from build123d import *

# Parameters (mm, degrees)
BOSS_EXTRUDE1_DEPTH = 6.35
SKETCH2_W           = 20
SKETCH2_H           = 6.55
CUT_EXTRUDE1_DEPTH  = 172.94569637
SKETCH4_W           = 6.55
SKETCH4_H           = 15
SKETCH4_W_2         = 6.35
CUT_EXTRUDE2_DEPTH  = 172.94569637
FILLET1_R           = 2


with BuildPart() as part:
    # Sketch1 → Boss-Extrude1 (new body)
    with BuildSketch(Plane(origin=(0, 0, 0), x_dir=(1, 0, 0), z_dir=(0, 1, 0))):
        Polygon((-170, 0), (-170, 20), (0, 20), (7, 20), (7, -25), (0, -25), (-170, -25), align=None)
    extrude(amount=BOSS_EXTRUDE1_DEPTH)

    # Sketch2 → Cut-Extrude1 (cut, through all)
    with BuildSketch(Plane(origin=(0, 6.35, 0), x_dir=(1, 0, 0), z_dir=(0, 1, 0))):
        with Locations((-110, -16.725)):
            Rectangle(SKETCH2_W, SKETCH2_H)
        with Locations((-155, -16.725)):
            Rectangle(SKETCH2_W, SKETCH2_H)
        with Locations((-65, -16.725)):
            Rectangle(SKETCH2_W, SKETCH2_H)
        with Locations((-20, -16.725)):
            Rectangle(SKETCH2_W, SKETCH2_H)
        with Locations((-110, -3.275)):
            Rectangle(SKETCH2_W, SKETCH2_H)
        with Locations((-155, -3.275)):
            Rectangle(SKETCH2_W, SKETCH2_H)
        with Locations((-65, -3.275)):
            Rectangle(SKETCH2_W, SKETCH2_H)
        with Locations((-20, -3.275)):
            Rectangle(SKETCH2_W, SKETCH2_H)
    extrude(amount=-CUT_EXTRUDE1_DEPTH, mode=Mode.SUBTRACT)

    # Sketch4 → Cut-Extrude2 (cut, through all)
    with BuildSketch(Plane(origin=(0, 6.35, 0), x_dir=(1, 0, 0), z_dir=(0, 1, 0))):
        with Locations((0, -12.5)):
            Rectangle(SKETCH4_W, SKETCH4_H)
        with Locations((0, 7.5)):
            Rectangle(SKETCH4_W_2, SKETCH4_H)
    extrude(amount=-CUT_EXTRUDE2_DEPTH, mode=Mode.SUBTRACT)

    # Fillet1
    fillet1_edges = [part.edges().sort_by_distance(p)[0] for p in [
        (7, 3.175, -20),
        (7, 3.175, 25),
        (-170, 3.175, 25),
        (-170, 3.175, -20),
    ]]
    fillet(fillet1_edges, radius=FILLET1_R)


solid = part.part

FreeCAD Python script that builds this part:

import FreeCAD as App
import Part
import Sketcher

V = App.Vector


def edges_at(feature, points):
    """Names of the edges that pass closest to the given points."""
    edges = feature.Shape.Edges
    near = lambda p: min(range(len(edges)), key=lambda i: edges[i].distToShape(Part.Vertex(*p))[0])
    return sorted({f"Edge{near(p) + 1}" for p in points})

doc = App.newDocument("Part")
body = doc.addObject("PartDesign::Body", "Body")

# Sketch on XZ plane
sketch1 = body.newObject("Sketcher::SketchObject", "Sketch")
sketch1.AttachmentSupport = (doc.getObject("XZ_Plane"), [""])
sketch1.MapMode = "FlatFace"
sketch1.addGeometry([
    Part.LineSegment(V(-170, -20, 0), V(-170, 25, 0)),
    Part.LineSegment(V(-170, 25, 0), V(7, 25, 0)),
    Part.LineSegment(V(7, 25, 0), V(7, -20, 0)),
    Part.LineSegment(V(7, -20, 0), V(-170, -20, 0)),
], False)
sketch1.addConstraint([
    Sketcher.Constraint("Coincident", 0, 2, 1, 1),
    Sketcher.Constraint("Coincident", 1, 2, 2, 1),
    Sketcher.Constraint("Coincident", 2, 2, 3, 1),
    Sketcher.Constraint("Coincident", 3, 2, 0, 1),
    Sketcher.Constraint("Vertical", 0),
    Sketcher.Constraint("Horizontal", 1),
    Sketcher.Constraint("Vertical", 2),
    Sketcher.Constraint("Horizontal", 3),
    Sketcher.Constraint("DistanceX", 1, 1, 1, 2, 177.0),
    Sketcher.Constraint("DistanceY", 0, 1, 0, 2, 45.0),
    Sketcher.Constraint("DistanceX", 0, 2, -1, 1, 170.0),
    Sketcher.Constraint("DistanceY", -1, 1, 0, 2, 25.0),
])
pad1 = body.newObject("PartDesign::Pad", "Pad")
pad1.Profile = sketch1
pad1.Length = 6.35
pad1.Reversed = True

# Sketch on XZ plane
sketch2 = body.newObject("Sketcher::SketchObject", "Sketch001")
sketch2.AttachmentSupport = (doc.getObject("XZ_Plane"), [""])
sketch2.MapMode = "FlatFace"
sketch2.AttachmentOffset = App.Placement(V(0, 0, -6.35), App.Rotation())
sketch2.addGeometry([
    Part.LineSegment(V(-120, 13, 0), V(-120, 20, 0)),  # 0
    Part.LineSegment(V(-120, 20, 0), V(-100, 20, 0)),  # 1
    Part.LineSegment(V(-100, 20, 0), V(-100, 13, 0)),  # 2
    Part.LineSegment(V(-100, 13, 0), V(-120, 13, 0)),  # 3
    Part.LineSegment(V(-165, 13, 0), V(-165, 20, 0)),  # 4
    Part.LineSegment(V(-165, 20, 0), V(-145, 20, 0)),  # 5
    Part.LineSegment(V(-145, 20, 0), V(-145, 13, 0)),  # 6
    Part.LineSegment(V(-145, 13, 0), V(-165, 13, 0)),  # 7
    Part.LineSegment(V(-75, 13, 0), V(-75, 20, 0)),  # 8
    Part.LineSegment(V(-75, 20, 0), V(-55, 20, 0)),  # 9
    Part.LineSegment(V(-55, 20, 0), V(-55, 13, 0)),  # 10
    Part.LineSegment(V(-55, 13, 0), V(-75, 13, 0)),  # 11
    Part.LineSegment(V(-30, 13, 0), V(-30, 20, 0)),  # 12
    Part.LineSegment(V(-30, 20, 0), V(-10, 20, 0)),  # 13
    Part.LineSegment(V(-10, 20, 0), V(-10, 13, 0)),  # 14
    Part.LineSegment(V(-10, 13, 0), V(-30, 13, 0)),  # 15
    Part.LineSegment(V(-120, 0, 0), V(-120, 7, 0)),  # 16
    Part.LineSegment(V(-120, 7, 0), V(-100, 7, 0)),  # 17
    Part.LineSegment(V(-100, 7, 0), V(-100, 0, 0)),  # 18
    Part.LineSegment(V(-100, 0, 0), V(-120, 0, 0)),  # 19
    Part.LineSegment(V(-165, 0, 0), V(-165, 7, 0)),  # 20
    Part.LineSegment(V(-165, 7, 0), V(-145, 7, 0)),  # 21
    Part.LineSegment(V(-145, 7, 0), V(-145, 0, 0)),  # 22
    Part.LineSegment(V(-145, 0, 0), V(-165, 0, 0)),  # 23
    Part.LineSegment(V(-75, 0, 0), V(-75, 7, 0)),  # 24
    Part.LineSegment(V(-75, 7, 0), V(-55, 7, 0)),  # 25
    Part.LineSegment(V(-55, 7, 0), V(-55, 0, 0)),  # 26
    Part.LineSegment(V(-55, 0, 0), V(-75, 0, 0)),  # 27
    Part.LineSegment(V(-30, 0, 0), V(-30, 7, 0)),  # 28
    Part.LineSegment(V(-30, 7, 0), V(-10, 7, 0)),  # 29
    Part.LineSegment(V(-10, 7, 0), V(-10, 0, 0)),  # 30
    Part.LineSegment(V(-10, 0, 0), V(-30, 0, 0)),  # 31
], False)
sketch2.addConstraint([
    Sketcher.Constraint("Coincident", 0, 2, 1, 1),
    Sketcher.Constraint("Coincident", 1, 2, 2, 1),
    Sketcher.Constraint("Coincident", 2, 2, 3, 1),
    Sketcher.Constraint("Coincident", 3, 2, 0, 1),
    Sketcher.Constraint("Coincident", 4, 2, 5, 1),
    Sketcher.Constraint("Coincident", 5, 2, 6, 1),
    Sketcher.Constraint("Coincident", 6, 2, 7, 1),
    Sketcher.Constraint("Coincident", 7, 2, 4, 1),
    Sketcher.Constraint("Coincident", 8, 2, 9, 1),
    Sketcher.Constraint("Coincident", 9, 2, 10, 1),
    Sketcher.Constraint("Coincident", 10, 2, 11, 1),
    Sketcher.Constraint("Coincident", 11, 2, 8, 1),
    Sketcher.Constraint("Coincident", 12, 2, 13, 1),
    Sketcher.Constraint("Coincident", 13, 2, 14, 1),
    Sketcher.Constraint("Coincident", 14, 2, 15, 1),
    Sketcher.Constraint("Coincident", 15, 2, 12, 1),
    Sketcher.Constraint("Coincident", 16, 2, 17, 1),
    Sketcher.Constraint("Coincident", 17, 2, 18, 1),
    Sketcher.Constraint("Coincident", 18, 2, 19, 1),
    Sketcher.Constraint("Coincident", 19, 2, 16, 1),
    Sketcher.Constraint("Coincident", 20, 2, 21, 1),
    Sketcher.Constraint("Coincident", 21, 2, 22, 1),
    Sketcher.Constraint("Coincident", 22, 2, 23, 1),
    Sketcher.Constraint("Coincident", 23, 2, 20, 1),
    Sketcher.Constraint("Coincident", 24, 2, 25, 1),
    Sketcher.Constraint("Coincident", 25, 2, 26, 1),
    Sketcher.Constraint("Coincident", 26, 2, 27, 1),
    Sketcher.Constraint("Coincident", 27, 2, 24, 1),
    Sketcher.Constraint("Coincident", 28, 2, 29, 1),
    Sketcher.Constraint("Coincident", 29, 2, 30, 1),
    Sketcher.Constraint("Coincident", 30, 2, 31, 1),
    Sketcher.Constraint("Coincident", 31, 2, 28, 1),
    Sketcher.Constraint("Vertical", 0),
    Sketcher.Constraint("Horizontal", 1),
    Sketcher.Constraint("Vertical", 2),
    Sketcher.Constraint("Horizontal", 3),
    Sketcher.Constraint("Vertical", 4),
    Sketcher.Constraint("Horizontal", 5),
    Sketcher.Constraint("Vertical", 6),
    Sketcher.Constraint("Horizontal", 7),
    Sketcher.Constraint("Vertical", 8),
    Sketcher.Constraint("Horizontal", 9),
    Sketcher.Constraint("Vertical", 10),
    Sketcher.Constraint("Horizontal", 11),
    Sketcher.Constraint("Vertical", 12),
    Sketcher.Constraint("Horizontal", 13),
    Sketcher.Constraint("Vertical", 14),
    Sketcher.Constraint("Horizontal", 15),
    Sketcher.Constraint("Vertical", 16),
    Sketcher.Constraint("Horizontal", 17),
    Sketcher.Constraint("Vertical", 18),
    Sketcher.Constraint("Horizontal", 19),
    Sketcher.Constraint("Vertical", 20),
    Sketcher.Constraint("Horizontal", 21),
    Sketcher.Constraint("Vertical", 22),
    Sketcher.Constraint("Horizontal", 23),
    Sketcher.Constraint("Vertical", 24),
    Sketcher.Constraint("Horizontal", 25),
    Sketcher.Constraint("Vertical", 26),
    Sketcher.Constraint("Horizontal", 27),
    Sketcher.Constraint("Vertical", 28),
    Sketcher.Constraint("Horizontal", 29),
    Sketcher.Constraint("Vertical", 30),
    Sketcher.Constraint("Horizontal", 31),
    Sketcher.Constraint("PointOnObject", 18, 2, -1),
    Sketcher.Constraint("PointOnObject", 22, 2, -1),
    Sketcher.Constraint("PointOnObject", 26, 2, -1),
    Sketcher.Constraint("PointOnObject", 30, 2, -1),
    Sketcher.Constraint("Horizontal", 1, 2, 4, 2),
    Sketcher.Constraint("Horizontal", 3, 2, 6, 2),
    Sketcher.Constraint("Horizontal", 5, 2, 8, 2),
    Sketcher.Constraint("Horizontal", 7, 2, 10, 2),
    Sketcher.Constraint("Horizontal", 9, 2, 12, 2),
    Sketcher.Constraint("Horizontal", 11, 2, 14, 2),
    Sketcher.Constraint("Horizontal", 17, 2, 20, 2),
    Sketcher.Constraint("Horizontal", 21, 2, 24, 2),
    Sketcher.Constraint("Horizontal", 25, 2, 28, 2),
    Sketcher.Constraint("Vertical", 3, 2, 16, 2),
    Sketcher.Constraint("Vertical", 2, 2, 17, 2),
    Sketcher.Constraint("Vertical", 7, 2, 20, 2),
    Sketcher.Constraint("Vertical", 6, 2, 21, 2),
    Sketcher.Constraint("Vertical", 11, 2, 24, 2),
    Sketcher.Constraint("Vertical", 10, 2, 25, 2),
    Sketcher.Constraint("Vertical", 15, 2, 28, 2),
    Sketcher.Constraint("Vertical", 14, 2, 29, 2),
    Sketcher.Constraint("Equal", 3, 5),
    Sketcher.Constraint("Equal", 7, 9),
    Sketcher.Constraint("Equal", 11, 13),
    Sketcher.Constraint("Equal", 14, 16),
    Sketcher.Constraint("DistanceX", 1, 1, 1, 2, 20.0),
    Sketcher.Constraint("DistanceX", 0, 2, -1, 1, 120.0),
    Sketcher.Constraint("DistanceY", -1, 1, 0, 2, 20.0),
    Sketcher.Constraint("DistanceX", 4, 2, -1, 1, 165.0),
    Sketcher.Constraint("DistanceX", 8, 2, -1, 1, 75.0),
    Sketcher.Constraint("DistanceX", 12, 2, -1, 1, 30.0),
    Sketcher.Constraint("DistanceY", 0, 1, 0, 2, 6.55),
])
pocket1 = body.newObject("PartDesign::Pocket", "Pocket")
pocket1.Profile = sketch2
pocket1.Type = "ThroughAll"
pocket1.Reversed = True

# Sketch on XZ plane
sketch3 = body.newObject("Sketcher::SketchObject", "Sketch002")
sketch3.AttachmentSupport = (doc.getObject("XZ_Plane"), [""])
sketch3.MapMode = "FlatFace"
sketch3.AttachmentOffset = App.Placement(V(0, 0, -6.35), App.Rotation())
sketch3.addGeometry([
    Part.LineSegment(V(-3, 5, 0), V(-3, 20, 0)),  # 0
    Part.LineSegment(V(-3, 20, 0), V(3, 20, 0)),  # 1
    Part.LineSegment(V(3, 20, 0), V(3, 5, 0)),  # 2
    Part.LineSegment(V(3, 5, 0), V(-3, 5, 0)),  # 3
    Part.LineSegment(V(-3, -15, 0), V(-3, 0, 0)),  # 4
    Part.LineSegment(V(-3, 0, 0), V(3, 0, 0)),  # 5
    Part.LineSegment(V(3, 0, 0), V(3, -15, 0)),  # 6
    Part.LineSegment(V(3, -15, 0), V(-3, -15, 0)),  # 7
], False)
sketch3.addConstraint([
    Sketcher.Constraint("Coincident", 0, 2, 1, 1),
    Sketcher.Constraint("Coincident", 1, 2, 2, 1),
    Sketcher.Constraint("Coincident", 2, 2, 3, 1),
    Sketcher.Constraint("Coincident", 3, 2, 0, 1),
    Sketcher.Constraint("Coincident", 4, 2, 5, 1),
    Sketcher.Constraint("Coincident", 5, 2, 6, 1),
    Sketcher.Constraint("Coincident", 6, 2, 7, 1),
    Sketcher.Constraint("Coincident", 7, 2, 4, 1),
    Sketcher.Constraint("Vertical", 0),
    Sketcher.Constraint("Horizontal", 1),
    Sketcher.Constraint("Vertical", 2),
    Sketcher.Constraint("Horizontal", 3),
    Sketcher.Constraint("Vertical", 4),
    Sketcher.Constraint("Horizontal", 5),
    Sketcher.Constraint("Vertical", 6),
    Sketcher.Constraint("Horizontal", 7),
    Sketcher.Constraint("Symmetric", 4, 2, 5, 2, -1, 1),
    Sketcher.Constraint("Equal", 2, 4),
    Sketcher.Constraint("DistanceY", 0, 1, 0, 2, 15.0),
    Sketcher.Constraint("DistanceY", -1, 1, 0, 2, 20.0),
    Sketcher.Constraint("DistanceX", 1, 1, 1, 2, 6.55),
    Sketcher.Constraint("DistanceX", 5, 1, 5, 2, 6.35),
    Sketcher.Constraint("DistanceX", 3, 2, 4, 2, 0.1),
])
pocket2 = body.newObject("PartDesign::Pocket", "Pocket001")
pocket2.Profile = sketch3
pocket2.Type = "ThroughAll"
pocket2.Reversed = True
doc.recompute()

fillet = body.newObject("PartDesign::Fillet", "Fillet")
fillet.Base = (pocket2, edges_at(pocket2, [
    (7, 3.175, -20),
    (7, 3.175, 25),
    (-170, 3.175, 25),
    (-170, 3.175, -20),
]))
fillet.Radius = 2

doc.recompute()
